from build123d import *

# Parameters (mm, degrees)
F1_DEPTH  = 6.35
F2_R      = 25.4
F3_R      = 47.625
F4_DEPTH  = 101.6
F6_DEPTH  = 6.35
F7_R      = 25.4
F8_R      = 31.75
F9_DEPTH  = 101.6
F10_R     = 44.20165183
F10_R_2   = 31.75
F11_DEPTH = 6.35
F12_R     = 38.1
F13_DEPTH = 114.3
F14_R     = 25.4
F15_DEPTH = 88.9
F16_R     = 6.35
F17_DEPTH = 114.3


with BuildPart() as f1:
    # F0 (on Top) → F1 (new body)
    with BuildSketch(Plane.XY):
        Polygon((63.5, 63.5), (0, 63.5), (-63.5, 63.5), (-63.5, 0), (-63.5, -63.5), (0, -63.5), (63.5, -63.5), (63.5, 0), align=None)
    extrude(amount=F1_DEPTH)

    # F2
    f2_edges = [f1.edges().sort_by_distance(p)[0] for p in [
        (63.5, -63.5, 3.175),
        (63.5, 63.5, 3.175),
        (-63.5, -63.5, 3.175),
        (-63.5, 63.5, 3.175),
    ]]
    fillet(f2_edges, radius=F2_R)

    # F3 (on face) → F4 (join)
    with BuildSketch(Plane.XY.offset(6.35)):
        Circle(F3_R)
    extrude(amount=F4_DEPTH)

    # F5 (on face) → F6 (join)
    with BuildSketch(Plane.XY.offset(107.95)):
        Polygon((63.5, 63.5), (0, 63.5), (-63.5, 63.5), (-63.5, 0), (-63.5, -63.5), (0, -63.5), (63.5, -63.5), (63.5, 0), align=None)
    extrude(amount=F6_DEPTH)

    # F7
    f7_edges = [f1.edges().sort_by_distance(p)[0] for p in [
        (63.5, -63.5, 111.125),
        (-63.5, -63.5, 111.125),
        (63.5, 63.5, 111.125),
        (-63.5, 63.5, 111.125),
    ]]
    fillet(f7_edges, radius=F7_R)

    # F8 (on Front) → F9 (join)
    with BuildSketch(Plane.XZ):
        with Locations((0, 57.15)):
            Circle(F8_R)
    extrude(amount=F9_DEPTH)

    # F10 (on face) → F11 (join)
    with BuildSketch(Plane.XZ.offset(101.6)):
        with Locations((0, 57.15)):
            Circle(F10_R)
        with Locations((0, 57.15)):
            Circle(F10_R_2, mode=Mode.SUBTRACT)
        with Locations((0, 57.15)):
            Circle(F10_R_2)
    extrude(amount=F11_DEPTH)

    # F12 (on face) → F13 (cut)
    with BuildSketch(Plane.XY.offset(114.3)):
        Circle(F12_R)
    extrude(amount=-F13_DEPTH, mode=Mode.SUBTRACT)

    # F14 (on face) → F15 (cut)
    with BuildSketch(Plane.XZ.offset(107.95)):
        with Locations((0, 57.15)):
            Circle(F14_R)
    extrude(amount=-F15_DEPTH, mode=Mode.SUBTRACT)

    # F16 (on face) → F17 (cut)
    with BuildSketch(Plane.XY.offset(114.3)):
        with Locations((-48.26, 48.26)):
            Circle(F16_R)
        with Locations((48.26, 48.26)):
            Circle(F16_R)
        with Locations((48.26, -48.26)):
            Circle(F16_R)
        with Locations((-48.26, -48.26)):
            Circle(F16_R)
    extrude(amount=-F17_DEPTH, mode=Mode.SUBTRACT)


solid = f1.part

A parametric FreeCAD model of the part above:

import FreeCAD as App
import Part
import Sketcher

V = App.Vector
Q = App.Units.Quantity


def edges_at(feature, points):
    """Names of the edges that pass closest to the given points."""
    edges = feature.Shape.Edges
    near = lambda p: min(range(len(edges)), key=lambda i: edges[i].distToShape(Part.Vertex(*p))[0])
    return sorted({f"Edge{near(p) + 1}" for p in points})

doc = App.newDocument("Part")
params = doc.addObject("Spreadsheet::Sheet", "Params")
for row, (alias, value) in enumerate([
    ("sketch1_width", "5 in"),
    ("pad1_length", "0.25 in"),
    ("fillet_radius", "1 in"),
    ("sketch2_diameter", "3.75 in"),
    ("pad2_length", "4 in"),
    ("sketch3_width", "5 in"),
    ("pad3_length", "0.25 in"),
    ("fillet2_radius", "1 in"),
    ("sketch4_diameter", "2.5 in"),
    ("pad4_length", "4 in"),
    ("pad5_length", "0.25 in"),
    ("sketch6_diameter", "3 in"),
    ("pocket1_length", "4.5 in"),
    ("sketch7_diameter", "2 in"),
    ("pocket2_length", "3.5 in"),
    ("sketch8_diameter", "0.5 in"),
    ("pocket3_length", "4.5 in"),
], start=1):
    params.set(f"A{row}", alias)
    params.set(f"B{row}", "=" + value)
    params.setAlias(f"B{row}", alias)

body = doc.addObject("PartDesign::Body", "Body")

# Sketch on XY plane
sketch1 = body.newObject("Sketcher::SketchObject", "Sketch")
sketch1.AttachmentSupport = (doc.getObject("XY_Plane"), [""])
sketch1.MapMode = "FlatFace"
sketch1.addGeometry([
    Part.LineSegment(V(64, 64, 0), V(-64, 64, 0)),
    Part.LineSegment(V(-64, 64, 0), V(-64, -64, 0)),
    Part.LineSegment(V(-64, -64, 0), V(64, -64, 0)),
    Part.LineSegment(V(64, -64, 0), V(64, 64, 0)),
], False)
sketch1.addConstraint([
    Sketcher.Constraint("Coincident", 0, 2, 1, 1),
    Sketcher.Constraint("Coincident", 1, 2, 2, 1),
    Sketcher.Constraint("Coincident", 2, 2, 3, 1),
    Sketcher.Constraint("Coincident", 3, 2, 0, 1),
    Sketcher.Constraint("Horizontal", 0),
    Sketcher.Constraint("Vertical", 1),
    Sketcher.Constraint("Horizontal", 2),
    Sketcher.Constraint("Vertical", 3),
    Sketcher.Constraint("Symmetric", 0, 2, 2, 2, -1, 1),
    Sketcher.Constraint("Equal", 2, 1),
    Sketcher.Constraint("DistanceX", 0, 2, 0, 1, Q("5 in")),
])
sketch1.setExpression("Constraints[10]", "Params.sketch1_width")
pad1 = body.newObject("PartDesign::Pad", "Pad")
pad1.Profile = sketch1
pad1.setExpression("Length", "Params.pad1_length")
doc.recompute()

fillet = body.newObject("PartDesign::Fillet", "Fillet")
fillet.Base = (pad1, edges_at(pad1, [
    (63.5, -63.5, 3.175),
    (63.5, 63.5, 3.175),
    (-63.5, -63.5, 3.175),
    (-63.5, 63.5, 3.175),
]))
fillet.setExpression("Radius", "Params.fillet_radius")

# Sketch on XY plane
sketch2 = body.newObject("Sketcher::SketchObject", "Sketch001")
sketch2.AttachmentSupport = (doc.getObject("XY_Plane"), [""])
sketch2.MapMode = "FlatFace"
sketch2.AttachmentOffset = App.Placement(V(0, 0, 0.25 * 25.4), App.Rotation())
sketch2.addGeometry(Part.Circle(V(0, 0, 0), V(0, 0, 1), 48), False)
sketch2.addConstraint([
    Sketcher.Constraint("Coincident", 0, 3, -1, 1),
    Sketcher.Constraint("Diameter", 0, Q("3.75 in")),
])
sketch2.setExpression("Constraints[1]", "Params.sketch2_diameter")
pad2 = body.newObject("PartDesign::Pad", "Pad001")
pad2.Profile = sketch2
pad2.setExpression("Length", "Params.pad2_length")

# Sketch on XY plane
sketch3 = body.newObject("Sketcher::SketchObject", "Sketch002")
sketch3.AttachmentSupport = (doc.getObject("XY_Plane"), [""])
sketch3.MapMode = "FlatFace"
sketch3.AttachmentOffset = App.Placement(V(0, 0, 4.25 * 25.4), App.Rotation())
sketch3.addGeometry([
    Part.LineSegment(V(64, 64, 0), V(-64, 64, 0)),
    Part.LineSegment(V(-64, 64, 0), V(-64, -64, 0)),
    Part.LineSegment(V(-64, -64, 0), V(64, -64, 0)),
    Part.LineSegment(V(64, -64, 0), V(64, 64, 0)),
], False)
sketch3.addConstraint([
    Sketcher.Constraint("Coincident", 0, 2, 1, 1),
    Sketcher.Constraint("Coincident", 1, 2, 2, 1),
    Sketcher.Constraint("Coincident", 2, 2, 3, 1),
    Sketcher.Constraint("Coincident", 3, 2, 0, 1),
    Sketcher.Constraint("Horizontal", 0),
    Sketcher.Constraint("Vertical", 1),
    Sketcher.Constraint("Horizontal", 2),
    Sketcher.Constraint("Vertical", 3),
    Sketcher.Constraint("Symmetric", 0, 2, 2, 2, -1, 1),
    Sketcher.Constraint("Equal", 2, 1),
    Sketcher.Constraint("DistanceX", 0, 2, 0, 1, Q("5 in")),
])
sketch3.setExpression("Constraints[10]", "Params.sketch3_width")
pad3 = body.newObject("PartDesign::Pad", "Pad002")
pad3.Profile = sketch3
pad3.setExpression("Length", "Params.pad3_length")
doc.recompute()

fillet2 = body.newObject("PartDesign::Fillet", "Fillet001")
fillet2.Base = (pad3, edges_at(pad3, [
    (63.5, -63.5, 111.125),
    (-63.5, -63.5, 111.125),
    (63.5, 63.5, 111.125),
    (-63.5, 63.5, 111.125),
]))
fillet2.setExpression("Radius", "Params.fillet2_radius")

# Sketch on XZ plane
sketch4 = body.newObject("Sketcher::SketchObject", "Sketch003")
sketch4.AttachmentSupport = (doc.getObject("XZ_Plane"), [""])
sketch4.MapMode = "FlatFace"
sketch4.addGeometry(Part.Circle(V(0, 57, 0), V(0, 0, 1), 32), False)
sketch4.addConstraint([
    Sketcher.Constraint("PointOnObject", 0, 3, -2),
    Sketcher.Constraint("Diameter", 0, Q("2.5 in")),
    Sketcher.Constraint("DistanceY", -1, 1, 0, 3, Q("2.25 in")),
])
sketch4.setExpression("Constraints[1]", "Params.sketch4_diameter")
pad4 = body.newObject("PartDesign::Pad", "Pad003")
pad4.Profile = sketch4
pad4.setExpression("Length", "Params.pad4_length")

# Sketch on XZ plane
sketch5 = body.newObject("Sketcher::SketchObject", "Sketch004")
sketch5.AttachmentSupport = (doc.getObject("XZ_Plane"), [""])
sketch5.MapMode = "FlatFace"
sketch5.AttachmentOffset = App.Placement(V(0, 0, 4 * 25.4), App.Rotation())
sketch5.addGeometry(Part.Circle(V(0, 57, 0), V(0, 0, 1), 44), False)
sketch5.addConstraint([
    Sketcher.Constraint("PointOnObject", 0, 3, -2),
    Sketcher.Constraint("DistanceY", -1, 1, 0, 3, Q("2.25 in")),
    Sketcher.Constraint("Diameter", 0, 88.403304),
])
pad5 = body.newObject("PartDesign::Pad", "Pad004")
pad5.Profile = sketch5
pad5.setExpression("Length", "Params.pad5_length")

# Sketch on XY plane
sketch6 = body.newObject("Sketcher::SketchObject", "Sketch005")
sketch6.AttachmentSupport = (doc.getObject("XY_Plane"), [""])
sketch6.MapMode = "FlatFace"
sketch6.AttachmentOffset = App.Placement(V(0, 0, 4.5 * 25.4), App.Rotation())
sketch6.addGeometry(Part.Circle(V(0, 0, 0), V(0, 0, 1), 38), False)
sketch6.addConstraint([
    Sketcher.Constraint("Coincident", 0, 3, -1, 1),
    Sketcher.Constraint("Diameter", 0, Q("3 in")),
])
sketch6.setExpression("Constraints[1]", "Params.sketch6_diameter")
pocket1 = body.newObject("PartDesign::Pocket", "Pocket")
pocket1.Profile = sketch6
pocket1.setExpression("Length", "Params.pocket1_length")

# Sketch on XZ plane
sketch7 = body.newObject("Sketcher::SketchObject", "Sketch006")
sketch7.AttachmentSupport = (doc.getObject("XZ_Plane"), [""])
sketch7.MapMode = "FlatFace"
sketch7.AttachmentOffset = App.Placement(V(0, 0, 4.25 * 25.4), App.Rotation())
sketch7.addGeometry(Part.Circle(V(0, 57, 0), V(0, 0, 1), 25), False)
sketch7.addConstraint([
    Sketcher.Constraint("PointOnObject", 0, 3, -2),
    Sketcher.Constraint("Diameter", 0, Q("2 in")),
    Sketcher.Constraint("DistanceY", -1, 1, 0, 3, Q("2.25 in")),
])
sketch7.setExpression("Constraints[1]", "Params.sketch7_diameter")
pocket2 = body.newObject("PartDesign::Pocket", "Pocket001")
pocket2.Profile = sketch7
pocket2.setExpression("Length", "Params.pocket2_length")

# Sketch on XY plane
sketch8 = body.newObject("Sketcher::SketchObject", "Sketch007")
sketch8.AttachmentSupport = (doc.getObject("XY_Plane"), [""])
sketch8.MapMode = "FlatFace"
sketch8.AttachmentOffset = App.Placement(V(0, 0, 4.5 * 25.4), App.Rotation())
sketch8.addGeometry([
    Part.Circle(V(-48, 48, 0), V(0, 0, 1), 6),
    Part.Circle(V(48, 48, 0), V(0, 0, 1), 6),
    Part.Circle(V(48, -48, 0), V(0, 0, 1), 6),
    Part.Circle(V(-48, -48, 0), V(0, 0, 1), 6),
], False)
sketch8.addConstraint([
    Sketcher.Constraint("Equal", 0, 1),
    Sketcher.Constraint("Equal", 1, 2),
    Sketcher.Constraint("Equal", 2, 3),
    Sketcher.Constraint("Symmetric", 0, 3, 2, 3, -1, 1),
    Sketcher.Constraint("Symmetric", 1, 3, 3, 3, -1, 1),
    Sketcher.Constraint("Symmetric", 0, 3, 1, 3, -2),
    Sketcher.Constraint("Diameter", 0, Q("0.5 in")),
    Sketcher.Constraint("DistanceX", 0, 3, -1, 1, Q("1.9 in")),
    Sketcher.Constraint("DistanceY", -1, 1, 0, 3, Q("1.9 in")),
])
sketch8.setExpression("Constraints[6]", "Params.sketch8_diameter")
pocket3 = body.newObject("PartDesign::Pocket", "Pocket002")
pocket3.Profile = sketch8
pocket3.setExpression("Length", "Params.pocket3_length")

doc.recompute()
